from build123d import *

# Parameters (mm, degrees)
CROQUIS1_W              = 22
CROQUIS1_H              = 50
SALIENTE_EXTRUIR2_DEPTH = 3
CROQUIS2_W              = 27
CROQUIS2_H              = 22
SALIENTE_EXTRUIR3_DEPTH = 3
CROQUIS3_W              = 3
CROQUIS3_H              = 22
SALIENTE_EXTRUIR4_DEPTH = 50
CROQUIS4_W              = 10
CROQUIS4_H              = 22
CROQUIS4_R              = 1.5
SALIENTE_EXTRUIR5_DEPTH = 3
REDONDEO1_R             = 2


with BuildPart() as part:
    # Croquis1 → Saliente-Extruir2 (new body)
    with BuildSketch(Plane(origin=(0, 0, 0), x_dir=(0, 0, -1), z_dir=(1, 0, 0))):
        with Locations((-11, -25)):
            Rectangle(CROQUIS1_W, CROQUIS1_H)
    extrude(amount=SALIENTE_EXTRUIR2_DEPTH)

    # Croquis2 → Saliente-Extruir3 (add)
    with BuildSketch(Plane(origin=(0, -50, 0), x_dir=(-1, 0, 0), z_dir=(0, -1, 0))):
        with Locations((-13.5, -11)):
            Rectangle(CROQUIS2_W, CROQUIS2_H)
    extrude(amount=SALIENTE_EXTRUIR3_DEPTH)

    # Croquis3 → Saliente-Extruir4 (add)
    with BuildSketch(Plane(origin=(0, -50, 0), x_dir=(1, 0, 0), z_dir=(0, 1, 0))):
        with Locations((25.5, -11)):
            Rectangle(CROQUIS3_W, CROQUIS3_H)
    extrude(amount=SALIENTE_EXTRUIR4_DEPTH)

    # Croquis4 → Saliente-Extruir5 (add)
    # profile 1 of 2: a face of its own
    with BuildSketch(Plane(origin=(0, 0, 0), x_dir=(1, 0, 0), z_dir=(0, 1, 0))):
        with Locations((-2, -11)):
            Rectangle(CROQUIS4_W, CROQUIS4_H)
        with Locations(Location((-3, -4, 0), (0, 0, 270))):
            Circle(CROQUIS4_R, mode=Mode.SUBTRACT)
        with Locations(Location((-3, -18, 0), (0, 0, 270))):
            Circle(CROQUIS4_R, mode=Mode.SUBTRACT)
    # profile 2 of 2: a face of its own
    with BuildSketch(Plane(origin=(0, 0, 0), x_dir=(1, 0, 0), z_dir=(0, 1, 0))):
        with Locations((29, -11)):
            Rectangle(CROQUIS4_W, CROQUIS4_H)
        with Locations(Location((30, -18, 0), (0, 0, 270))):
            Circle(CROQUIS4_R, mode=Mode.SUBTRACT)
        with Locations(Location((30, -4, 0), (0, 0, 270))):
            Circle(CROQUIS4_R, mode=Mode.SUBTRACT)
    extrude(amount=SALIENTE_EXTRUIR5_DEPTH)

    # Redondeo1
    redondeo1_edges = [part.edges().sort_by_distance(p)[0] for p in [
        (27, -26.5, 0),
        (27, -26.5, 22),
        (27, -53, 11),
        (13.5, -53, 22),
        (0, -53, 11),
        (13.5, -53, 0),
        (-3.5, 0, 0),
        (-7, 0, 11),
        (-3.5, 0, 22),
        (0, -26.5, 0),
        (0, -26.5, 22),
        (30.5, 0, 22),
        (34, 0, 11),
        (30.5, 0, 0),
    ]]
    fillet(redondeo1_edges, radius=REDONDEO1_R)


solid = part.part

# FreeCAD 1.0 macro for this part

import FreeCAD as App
import Part
import Sketcher
from FreeCAD import Vector


def edges_at(feature, points):
    """Names of the edges that pass closest to the given points."""
    edges = feature.Shape.Edges
    near = lambda p: min(range(len(edges)), key=lambda i: edges[i].distToShape(Part.Vertex(*p))[0])
    return sorted({f"Edge{near(p) + 1}" for p in points})

doc = App.newDocument("Part")
body = doc.addObject("PartDesign::Body", "Body")

# Sketch on YZ plane
sketch1 = doc.addObject("Sketcher::SketchObject", "Sketch")
body.addObject(sketch1)
sketch1.AttachmentSupport = (doc.YZ_Plane, [""])
sketch1.MapMode = "FlatFace"
sketch1.addGeometry([
    Part.LineSegment(Vector(0, 22, 0), Vector(-50, 22, 0)),
    Part.LineSegment(Vector(-50, 22, 0), Vector(-50, 0, 0)),
    Part.LineSegment(Vector(-50, 0, 0), Vector(0, 0, 0)),
    Part.LineSegment(Vector(0, 0, 0), Vector(0, 22, 0)),
], False)
sketch1.addConstraint([
    Sketcher.Constraint("Coincident", 0, 2, 1, 1),
    Sketcher.Constraint("Coincident", 1, 2, 2, 1),
    Sketcher.Constraint("Coincident", 2, 2, 3, 1),
    Sketcher.Constraint("Coincident", 3, 2, 0, 1),
    Sketcher.Constraint("Horizontal", 0),
    Sketcher.Constraint("Vertical", 1),
    Sketcher.Constraint("Horizontal", 2),
    Sketcher.Constraint("Vertical", 3),
    Sketcher.Constraint("Coincident", 2, 2, -1, 1),
    Sketcher.Constraint("DistanceX", 0, 2, 0, 1, 50.0),
    Sketcher.Constraint("DistanceY", 1, 2, 1, 1, 22.0),
])
pad1 = doc.addObject("PartDesign::Pad", "Pad")
body.addObject(pad1)
pad1.Profile = sketch1
pad1.Length = 3

# Sketch on XZ plane
sketch2 = doc.addObject("Sketcher::SketchObject", "Sketch001")
body.addObject(sketch2)
sketch2.AttachmentSupport = (doc.XZ_Plane, [""])
sketch2.MapMode = "FlatFace"
sketch2.AttachmentOffset = App.Placement(Vector(0, 0, 50), App.Rotation())
sketch2.addGeometry([
    Part.LineSegment(Vector(27, 0, 0), Vector(27, 22, 0)),
    Part.LineSegment(Vector(27, 22, 0), Vector(0, 22, 0)),
    Part.LineSegment(Vector(0, 22, 0), Vector(0, 0, 0)),
    Part.LineSegment(Vector(0, 0, 0), Vector(27, 0, 0)),
], False)
sketch2.addConstraint([
    Sketcher.Constraint("Coincident", 0, 2, 1, 1),
    Sketcher.Constraint("Coincident", 1, 2, 2, 1),
    Sketcher.Constraint("Coincident", 2, 2, 3, 1),
    Sketcher.Constraint("Coincident", 3, 2, 0, 1),
    Sketcher.Constraint("Vertical", 0),
    Sketcher.Constraint("Horizontal", 1),
    Sketcher.Constraint("Vertical", 2),
    Sketcher.Constraint("Horizontal", 3),
    Sketcher.Constraint("Coincident", 2, 2, -1, 1),
    Sketcher.Constraint("DistanceX", 1, 2, 1, 1, 27.0),
    Sketcher.Constraint("DistanceY", 0, 1, 0, 2, 22.0),
])
pad2 = doc.addObject("PartDesign::Pad", "Pad001")
body.addObject(pad2)
pad2.Profile = sketch2
pad2.Length = 3

# Sketch on XZ plane
sketch3 = doc.addObject("Sketcher::SketchObject", "Sketch002")
body.addObject(sketch3)
sketch3.AttachmentSupport = (doc.XZ_Plane, [""])
sketch3.MapMode = "FlatFace"
sketch3.AttachmentOffset = App.Placement(Vector(0, 0, 50), App.Rotation())
sketch3.addGeometry([
    Part.LineSegment(Vector(24, 0, 0), Vector(24, 22, 0)),
    Part.LineSegment(Vector(24, 22, 0), Vector(27, 22, 0)),
    Part.LineSegment(Vector(27, 22, 0), Vector(27, 0, 0)),
    Part.LineSegment(Vector(27, 0, 0), Vector(24, 0, 0)),
], False)
sketch3.addConstraint([
    Sketcher.Constraint("Coincident", 0, 2, 1, 1),
    Sketcher.Constraint("Coincident", 1, 2, 2, 1),
    Sketcher.Constraint("Coincident", 2, 2, 3, 1),
    Sketcher.Constraint("Coincident", 3, 2, 0, 1),
    Sketcher.Constraint("Vertical", 0),
    Sketcher.Constraint("Horizontal", 1),
    Sketcher.Constraint("Vertical", 2),
    Sketcher.Constraint("Horizontal", 3),
    Sketcher.Constraint("PointOnObject", 2, 2, -1),
    Sketcher.Constraint("DistanceX", 1, 1, 1, 2, 3.0),
    Sketcher.Constraint("DistanceY", 0, 1, 0, 2, 22.0),
    Sketcher.Constraint("DistanceX", -1, 1, 0, 2, 24.0),
])
pad3 = doc.addObject("PartDesign::Pad", "Pad002")
body.addObject(pad3)
pad3.Profile = sketch3
pad3.Length = 50
pad3.Reversed = True

# Sketch on XZ plane
sketch4 = doc.addObject("Sketcher::SketchObject", "Sketch003")
body.addObject(sketch4)
sketch4.AttachmentSupport = (doc.XZ_Plane, [""])
sketch4.MapMode = "FlatFace"
sketch4.addGeometry([
    Part.LineSegment(Vector(-7, 0, 0), Vector(-7, 22, 0)),  # 0
    Part.LineSegment(Vector(-7, 22, 0), Vector(3, 22, 0)),  # 1
    Part.LineSegment(Vector(3, 22, 0), Vector(3, 0, 0)),  # 2
    Part.LineSegment(Vector(3, 0, 0), Vector(-7, 0, 0)),  # 3
    Part.Circle(Vector(-3, 18, 0), Vector(0, 0, 1), 1.5),  # 4
    Part.Circle(Vector(-3, 4, 0), Vector(0, 0, 1), 1.5),  # 5
    Part.LineSegment(Vector(24, 0, 0), Vector(24, 22, 0)),  # 6
    Part.LineSegment(Vector(24, 22, 0), Vector(34, 22, 0)),  # 7
    Part.LineSegment(Vector(34, 22, 0), Vector(34, 0, 0)),  # 8
    Part.LineSegment(Vector(34, 0, 0), Vector(24, 0, 0)),  # 9
    Part.Circle(Vector(30, 18, 0), Vector(0, 0, 1), 1.5),  # 10
    Part.Circle(Vector(30, 4, 0), Vector(0, 0, 1), 1.5),  # 11
], False)
sketch4.addConstraint([
    Sketcher.Constraint("Coincident", 0, 2, 1, 1),
    Sketcher.Constraint("Coincident", 1, 2, 2, 1),
    Sketcher.Constraint("Coincident", 2, 2, 3, 1),
    Sketcher.Constraint("Coincident", 3, 2, 0, 1),
    Sketcher.Constraint("Coincident", 6, 2, 7, 1),
    Sketcher.Constraint("Coincident", 7, 2, 8, 1),
    Sketcher.Constraint("Coincident", 8, 2, 9, 1),
    Sketcher.Constraint("Coincident", 9, 2, 6, 1),
    Sketcher.Constraint("Vertical", 0),
    Sketcher.Constraint("Horizontal", 1),
    Sketcher.Constraint("Vertical", 2),
    Sketcher.Constraint("Horizontal", 3),
    Sketcher.Constraint("Vertical", 6),
    Sketcher.Constraint("Horizontal", 7),
    Sketcher.Constraint("Vertical", 8),
    Sketcher.Constraint("Horizontal", 9),
    Sketcher.Constraint("Equal", 4, 5),
    Sketcher.Constraint("Equal", 5, 10),
    Sketcher.Constraint("Equal", 10, 11),
    Sketcher.Constraint("PointOnObject", 2, 2, -1),
    Sketcher.Constraint("PointOnObject", 8, 2, -1),
    Sketcher.Constraint("Horizontal", 4, 3, 10, 3),
    Sketcher.Constraint("Horizontal", 5, 3, 11, 3),
    Sketcher.Constraint("Horizontal", 1, 2, 6, 2),
    Sketcher.Constraint("Vertical", 4, 3, 5, 3),
    Sketcher.Constraint("Vertical", 10, 3, 11, 3),
    Sketcher.Constraint("Equal", 3, 7),
    Sketcher.Constraint("Diameter", 4, 3.0),
    Sketcher.Constraint("DistanceX", 1, 1, 1, 2, 10.0),
    Sketcher.Constraint("DistanceY", 0, 1, 0, 2, 22.0),
    Sketcher.Constraint("DistanceX", 4, 3, -1, 1, 3.0),
    Sketcher.Constraint("DistanceY", -1, 1, 4, 3, 18.0),
    Sketcher.Constraint("DistanceY", -1, 1, 5, 3, 4.0),
    Sketcher.Constraint("DistanceX", -1, 1, 10, 3, 30.0),
    Sketcher.Constraint("DistanceX", 0, 2, -1, 1, 7.0),
    Sketcher.Constraint("DistanceX", -1, 1, 6, 2, 24.0),
])
pad4 = doc.addObject("PartDesign::Pad", "Pad003")
body.addObject(pad4)
pad4.Profile = sketch4
pad4.Length = 3
pad4.Reversed = True
doc.recompute()

fillet = doc.addObject("PartDesign::Fillet", "Fillet")
body.addObject(fillet)
fillet.Base = (pad4, edges_at(pad4, [
    (27, -26.5, 0),
    (27, -26.5, 22),
    (27, -53, 11),
    (13.5, -53, 22),
    (0, -53, 11),
    (13.5, -53, 0),
    (-3.5, 0, 0),
    (-7, 0, 11),
    (-3.5, 0, 22),
    (0, -26.5, 0),
    (0, -26.5, 22),
    (30.5, 0, 22),
    (34, 0, 11),
    (30.5, 0, 0),
]))
fillet.Radius = 2

doc.recompute()
